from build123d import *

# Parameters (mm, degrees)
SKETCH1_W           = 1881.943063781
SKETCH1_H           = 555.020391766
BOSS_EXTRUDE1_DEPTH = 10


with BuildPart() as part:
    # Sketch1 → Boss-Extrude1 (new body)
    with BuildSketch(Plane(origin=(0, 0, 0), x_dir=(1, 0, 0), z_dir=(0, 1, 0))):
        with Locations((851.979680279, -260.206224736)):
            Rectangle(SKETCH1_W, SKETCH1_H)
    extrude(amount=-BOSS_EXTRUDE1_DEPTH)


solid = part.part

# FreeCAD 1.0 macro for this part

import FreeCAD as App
import Part
import Sketcher
from FreeCAD import Vector
Q = App.Units.Quantity

doc = App.newDocument("Part")
body = doc.addObject("PartDesign::Body", "Body")

sketch1 = doc.addObject("Sketcher::SketchObject", "Sketch")
body.addObject(sketch1)
sketch1.AttachmentSupport = (doc.XZ_Plane, [""])
sketch1.MapMode = "FlatFace"
sketch1.addGeometry(Part.LineSegment(Vector(-89, -17, 0), Vector(-89, 538, 0)), False)
sketch1.addGeometry(Part.LineSegment(Vector(-89, 538, 0), Vector(1793, 538, 0)), False)
sketch1.addGeometry(Part.LineSegment(Vector(1793, 538, 0), Vector(1793, -17, 0)), False)
sketch1.addGeometry(Part.LineSegment(Vector(1793, -17, 0), Vector(-89, -17, 0)), False)
sketch1.addConstraint(Sketcher.Constraint("Coincident", 0, 2, 1, 1))
sketch1.addConstraint(Sketcher.Constraint("Coincident", 1, 2, 2, 1))
sketch1.addConstraint(Sketcher.Constraint("Coincident", 2, 2, 3, 1))
sketch1.addConstraint(Sketcher.Constraint("Coincident", 3, 2, 0, 1))
sketch1.addConstraint(Sketcher.Constraint("Vertical", 0))
sketch1.addConstraint(Sketcher.Constraint("Horizontal", 1))
sketch1.addConstraint(Sketcher.Constraint("Vertical", 2))
sketch1.addConstraint(Sketcher.Constraint("Horizontal", 3))
sketch1.addConstraint(Sketcher.Constraint("DistanceY", 0, 1, 0, 2, Q("555.020392 mm")))
sketch1.addConstraint(Sketcher.Constraint("DistanceX", 1, 1, 1, 2, Q("1881.943064 mm")))
sketch1.addConstraint(Sketcher.Constraint("DistanceX", 0, 2, -1, 1, Q("88.991852 mm")))
sketch1.addConstraint(Sketcher.Constraint("DistanceY", -1, 1, 0, 2, Q("537.716421 mm")))
pad1 = doc.addObject("PartDesign::Pad", "Pad")
body.addObject(pad1)
pad1.Profile = sketch1
pad1.Length = 10

doc.recompute()
